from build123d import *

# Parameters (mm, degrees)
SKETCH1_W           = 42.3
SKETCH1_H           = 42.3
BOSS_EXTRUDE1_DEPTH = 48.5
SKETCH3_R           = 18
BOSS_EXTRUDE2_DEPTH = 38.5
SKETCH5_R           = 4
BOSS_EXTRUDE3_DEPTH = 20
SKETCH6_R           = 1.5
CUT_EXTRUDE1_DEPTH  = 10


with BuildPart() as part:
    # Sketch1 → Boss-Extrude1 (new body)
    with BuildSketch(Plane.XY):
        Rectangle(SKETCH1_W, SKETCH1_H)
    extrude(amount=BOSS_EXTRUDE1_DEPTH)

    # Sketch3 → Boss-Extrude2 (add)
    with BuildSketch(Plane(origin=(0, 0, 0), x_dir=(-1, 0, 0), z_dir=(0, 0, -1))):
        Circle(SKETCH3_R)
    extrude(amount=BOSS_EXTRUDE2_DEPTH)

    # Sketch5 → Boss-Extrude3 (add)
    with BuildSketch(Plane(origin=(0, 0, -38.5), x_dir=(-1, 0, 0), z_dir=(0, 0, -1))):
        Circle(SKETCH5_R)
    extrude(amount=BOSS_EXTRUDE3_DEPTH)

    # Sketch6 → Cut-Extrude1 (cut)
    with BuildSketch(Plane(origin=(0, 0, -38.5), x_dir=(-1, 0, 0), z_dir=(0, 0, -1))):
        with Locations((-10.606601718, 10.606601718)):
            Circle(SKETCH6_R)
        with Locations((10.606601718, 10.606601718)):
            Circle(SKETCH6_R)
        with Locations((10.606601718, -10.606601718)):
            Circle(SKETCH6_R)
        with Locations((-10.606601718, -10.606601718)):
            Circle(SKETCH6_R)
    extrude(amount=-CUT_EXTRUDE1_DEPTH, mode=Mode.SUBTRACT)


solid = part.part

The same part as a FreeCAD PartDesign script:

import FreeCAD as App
import Part
import Sketcher
from FreeCAD import Vector

doc = App.newDocument("Part")
body = doc.addObject("PartDesign::Body", "Body")

# Sketch on XY plane
sketch1 = doc.addObject("Sketcher::SketchObject", "Sketch")
body.addObject(sketch1)
sketch1.AttachmentSupport = (doc.XY_Plane, [""])
sketch1.MapMode = "FlatFace"
sketch1.addGeometry([
    Part.LineSegment(Vector(-21, 21, 0), Vector(-21, -21, 0)),
    Part.LineSegment(Vector(-21, -21, 0), Vector(21, -21, 0)),
    Part.LineSegment(Vector(21, -21, 0), Vector(21, 21, 0)),
    Part.LineSegment(Vector(21, 21, 0), Vector(-21, 21, 0)),
], False)
sketch1.addConstraint([
    Sketcher.Constraint("Coincident", 0, 2, 1, 1),
    Sketcher.Constraint("Coincident", 1, 2, 2, 1),
    Sketcher.Constraint("Coincident", 2, 2, 3, 1),
    Sketcher.Constraint("Coincident", 3, 2, 0, 1),
    Sketcher.Constraint("Vertical", 0),
    Sketcher.Constraint("Horizontal", 1),
    Sketcher.Constraint("Vertical", 2),
    Sketcher.Constraint("Horizontal", 3),
    Sketcher.Constraint("Symmetric", 0, 2, 2, 2, -1, 1),
    Sketcher.Constraint("Equal", 3, 0),
    Sketcher.Constraint("DistanceX", 1, 1, 1, 2, 42.3),
])
pad1 = doc.addObject("PartDesign::Pad", "Pad")
body.addObject(pad1)
pad1.Profile = sketch1
pad1.Length = 48.5

# Sketch on XY plane
sketch2 = doc.addObject("Sketcher::SketchObject", "Sketch001")
body.addObject(sketch2)
sketch2.AttachmentSupport = (doc.XY_Plane, [""])
sketch2.MapMode = "FlatFace"
sketch2.addGeometry(Part.Circle(Vector(0, 0, 0), Vector(0, 0, 1), 18), False)
sketch2.addConstraint([
    Sketcher.Constraint("Coincident", 0, 3, -1, 1),
    Sketcher.Constraint("Diameter", 0, 36.0),
])
pad2 = doc.addObject("PartDesign::Pad", "Pad001")
body.addObject(pad2)
pad2.Profile = sketch2
pad2.Length = 38.5
pad2.Reversed = True

# Sketch on XY plane
sketch3 = doc.addObject("Sketcher::SketchObject", "Sketch002")
body.addObject(sketch3)
sketch3.AttachmentSupport = (doc.XY_Plane, [""])
sketch3.MapMode = "FlatFace"
sketch3.AttachmentOffset = App.Placement(Vector(0, 0, -38.5), App.Rotation())
sketch3.addGeometry(Part.Circle(Vector(0, 0, 0), Vector(0, 0, 1), 4), False)
sketch3.addConstraint([
    Sketcher.Constraint("Coincident", 0, 3, -1, 1),
    Sketcher.Constraint("Diameter", 0, 8.0),
])
pad3 = doc.addObject("PartDesign::Pad", "Pad002")
body.addObject(pad3)
pad3.Profile = sketch3
pad3.Length = 20
pad3.Reversed = True

# Sketch on XY plane
sketch4 = doc.addObject("Sketcher::SketchObject", "Sketch003")
body.addObject(sketch4)
sketch4.AttachmentSupport = (doc.XY_Plane, [""])
sketch4.MapMode = "FlatFace"
sketch4.AttachmentOffset = App.Placement(Vector(0, 0, -38.5), App.Rotation())
sketch4.addGeometry([
    Part.Circle(Vector(10.6, 10.6, 0), Vector(0, 0, 1), 1.5),
    Part.Circle(Vector(-10.6, 10.6, 0), Vector(0, 0, 1), 1.5),
    Part.Circle(Vector(-10.6, -10.6, 0), Vector(0, 0, 1), 1.5),
    Part.Circle(Vector(10.6, -10.6, 0), Vector(0, 0, 1), 1.5),
], False)
sketch4.addConstraint([
    Sketcher.Constraint("Equal", 0, 1),
    Sketcher.Constraint("Equal", 1, 2),
    Sketcher.Constraint("Equal", 2, 3),
    Sketcher.Constraint("Symmetric", 0, 3, 2, 3, -1, 1),
    Sketcher.Constraint("Symmetric", 1, 3, 3, 3, -1, 1),
    Sketcher.Constraint("Symmetric", 0, 3, 1, 3, -2),
    Sketcher.Constraint("Diameter", 0, 3.0),
    Sketcher.Constraint("DistanceX", -1, 1, 0, 3, 10.606602),
    Sketcher.Constraint("DistanceY", -1, 1, 0, 3, 10.606602),
])
pocket1 = doc.addObject("PartDesign::Pocket", "Pocket")
body.addObject(pocket1)
pocket1.Profile = sketch4
pocket1.Length = 10
pocket1.Reversed = True

doc.recompute()
